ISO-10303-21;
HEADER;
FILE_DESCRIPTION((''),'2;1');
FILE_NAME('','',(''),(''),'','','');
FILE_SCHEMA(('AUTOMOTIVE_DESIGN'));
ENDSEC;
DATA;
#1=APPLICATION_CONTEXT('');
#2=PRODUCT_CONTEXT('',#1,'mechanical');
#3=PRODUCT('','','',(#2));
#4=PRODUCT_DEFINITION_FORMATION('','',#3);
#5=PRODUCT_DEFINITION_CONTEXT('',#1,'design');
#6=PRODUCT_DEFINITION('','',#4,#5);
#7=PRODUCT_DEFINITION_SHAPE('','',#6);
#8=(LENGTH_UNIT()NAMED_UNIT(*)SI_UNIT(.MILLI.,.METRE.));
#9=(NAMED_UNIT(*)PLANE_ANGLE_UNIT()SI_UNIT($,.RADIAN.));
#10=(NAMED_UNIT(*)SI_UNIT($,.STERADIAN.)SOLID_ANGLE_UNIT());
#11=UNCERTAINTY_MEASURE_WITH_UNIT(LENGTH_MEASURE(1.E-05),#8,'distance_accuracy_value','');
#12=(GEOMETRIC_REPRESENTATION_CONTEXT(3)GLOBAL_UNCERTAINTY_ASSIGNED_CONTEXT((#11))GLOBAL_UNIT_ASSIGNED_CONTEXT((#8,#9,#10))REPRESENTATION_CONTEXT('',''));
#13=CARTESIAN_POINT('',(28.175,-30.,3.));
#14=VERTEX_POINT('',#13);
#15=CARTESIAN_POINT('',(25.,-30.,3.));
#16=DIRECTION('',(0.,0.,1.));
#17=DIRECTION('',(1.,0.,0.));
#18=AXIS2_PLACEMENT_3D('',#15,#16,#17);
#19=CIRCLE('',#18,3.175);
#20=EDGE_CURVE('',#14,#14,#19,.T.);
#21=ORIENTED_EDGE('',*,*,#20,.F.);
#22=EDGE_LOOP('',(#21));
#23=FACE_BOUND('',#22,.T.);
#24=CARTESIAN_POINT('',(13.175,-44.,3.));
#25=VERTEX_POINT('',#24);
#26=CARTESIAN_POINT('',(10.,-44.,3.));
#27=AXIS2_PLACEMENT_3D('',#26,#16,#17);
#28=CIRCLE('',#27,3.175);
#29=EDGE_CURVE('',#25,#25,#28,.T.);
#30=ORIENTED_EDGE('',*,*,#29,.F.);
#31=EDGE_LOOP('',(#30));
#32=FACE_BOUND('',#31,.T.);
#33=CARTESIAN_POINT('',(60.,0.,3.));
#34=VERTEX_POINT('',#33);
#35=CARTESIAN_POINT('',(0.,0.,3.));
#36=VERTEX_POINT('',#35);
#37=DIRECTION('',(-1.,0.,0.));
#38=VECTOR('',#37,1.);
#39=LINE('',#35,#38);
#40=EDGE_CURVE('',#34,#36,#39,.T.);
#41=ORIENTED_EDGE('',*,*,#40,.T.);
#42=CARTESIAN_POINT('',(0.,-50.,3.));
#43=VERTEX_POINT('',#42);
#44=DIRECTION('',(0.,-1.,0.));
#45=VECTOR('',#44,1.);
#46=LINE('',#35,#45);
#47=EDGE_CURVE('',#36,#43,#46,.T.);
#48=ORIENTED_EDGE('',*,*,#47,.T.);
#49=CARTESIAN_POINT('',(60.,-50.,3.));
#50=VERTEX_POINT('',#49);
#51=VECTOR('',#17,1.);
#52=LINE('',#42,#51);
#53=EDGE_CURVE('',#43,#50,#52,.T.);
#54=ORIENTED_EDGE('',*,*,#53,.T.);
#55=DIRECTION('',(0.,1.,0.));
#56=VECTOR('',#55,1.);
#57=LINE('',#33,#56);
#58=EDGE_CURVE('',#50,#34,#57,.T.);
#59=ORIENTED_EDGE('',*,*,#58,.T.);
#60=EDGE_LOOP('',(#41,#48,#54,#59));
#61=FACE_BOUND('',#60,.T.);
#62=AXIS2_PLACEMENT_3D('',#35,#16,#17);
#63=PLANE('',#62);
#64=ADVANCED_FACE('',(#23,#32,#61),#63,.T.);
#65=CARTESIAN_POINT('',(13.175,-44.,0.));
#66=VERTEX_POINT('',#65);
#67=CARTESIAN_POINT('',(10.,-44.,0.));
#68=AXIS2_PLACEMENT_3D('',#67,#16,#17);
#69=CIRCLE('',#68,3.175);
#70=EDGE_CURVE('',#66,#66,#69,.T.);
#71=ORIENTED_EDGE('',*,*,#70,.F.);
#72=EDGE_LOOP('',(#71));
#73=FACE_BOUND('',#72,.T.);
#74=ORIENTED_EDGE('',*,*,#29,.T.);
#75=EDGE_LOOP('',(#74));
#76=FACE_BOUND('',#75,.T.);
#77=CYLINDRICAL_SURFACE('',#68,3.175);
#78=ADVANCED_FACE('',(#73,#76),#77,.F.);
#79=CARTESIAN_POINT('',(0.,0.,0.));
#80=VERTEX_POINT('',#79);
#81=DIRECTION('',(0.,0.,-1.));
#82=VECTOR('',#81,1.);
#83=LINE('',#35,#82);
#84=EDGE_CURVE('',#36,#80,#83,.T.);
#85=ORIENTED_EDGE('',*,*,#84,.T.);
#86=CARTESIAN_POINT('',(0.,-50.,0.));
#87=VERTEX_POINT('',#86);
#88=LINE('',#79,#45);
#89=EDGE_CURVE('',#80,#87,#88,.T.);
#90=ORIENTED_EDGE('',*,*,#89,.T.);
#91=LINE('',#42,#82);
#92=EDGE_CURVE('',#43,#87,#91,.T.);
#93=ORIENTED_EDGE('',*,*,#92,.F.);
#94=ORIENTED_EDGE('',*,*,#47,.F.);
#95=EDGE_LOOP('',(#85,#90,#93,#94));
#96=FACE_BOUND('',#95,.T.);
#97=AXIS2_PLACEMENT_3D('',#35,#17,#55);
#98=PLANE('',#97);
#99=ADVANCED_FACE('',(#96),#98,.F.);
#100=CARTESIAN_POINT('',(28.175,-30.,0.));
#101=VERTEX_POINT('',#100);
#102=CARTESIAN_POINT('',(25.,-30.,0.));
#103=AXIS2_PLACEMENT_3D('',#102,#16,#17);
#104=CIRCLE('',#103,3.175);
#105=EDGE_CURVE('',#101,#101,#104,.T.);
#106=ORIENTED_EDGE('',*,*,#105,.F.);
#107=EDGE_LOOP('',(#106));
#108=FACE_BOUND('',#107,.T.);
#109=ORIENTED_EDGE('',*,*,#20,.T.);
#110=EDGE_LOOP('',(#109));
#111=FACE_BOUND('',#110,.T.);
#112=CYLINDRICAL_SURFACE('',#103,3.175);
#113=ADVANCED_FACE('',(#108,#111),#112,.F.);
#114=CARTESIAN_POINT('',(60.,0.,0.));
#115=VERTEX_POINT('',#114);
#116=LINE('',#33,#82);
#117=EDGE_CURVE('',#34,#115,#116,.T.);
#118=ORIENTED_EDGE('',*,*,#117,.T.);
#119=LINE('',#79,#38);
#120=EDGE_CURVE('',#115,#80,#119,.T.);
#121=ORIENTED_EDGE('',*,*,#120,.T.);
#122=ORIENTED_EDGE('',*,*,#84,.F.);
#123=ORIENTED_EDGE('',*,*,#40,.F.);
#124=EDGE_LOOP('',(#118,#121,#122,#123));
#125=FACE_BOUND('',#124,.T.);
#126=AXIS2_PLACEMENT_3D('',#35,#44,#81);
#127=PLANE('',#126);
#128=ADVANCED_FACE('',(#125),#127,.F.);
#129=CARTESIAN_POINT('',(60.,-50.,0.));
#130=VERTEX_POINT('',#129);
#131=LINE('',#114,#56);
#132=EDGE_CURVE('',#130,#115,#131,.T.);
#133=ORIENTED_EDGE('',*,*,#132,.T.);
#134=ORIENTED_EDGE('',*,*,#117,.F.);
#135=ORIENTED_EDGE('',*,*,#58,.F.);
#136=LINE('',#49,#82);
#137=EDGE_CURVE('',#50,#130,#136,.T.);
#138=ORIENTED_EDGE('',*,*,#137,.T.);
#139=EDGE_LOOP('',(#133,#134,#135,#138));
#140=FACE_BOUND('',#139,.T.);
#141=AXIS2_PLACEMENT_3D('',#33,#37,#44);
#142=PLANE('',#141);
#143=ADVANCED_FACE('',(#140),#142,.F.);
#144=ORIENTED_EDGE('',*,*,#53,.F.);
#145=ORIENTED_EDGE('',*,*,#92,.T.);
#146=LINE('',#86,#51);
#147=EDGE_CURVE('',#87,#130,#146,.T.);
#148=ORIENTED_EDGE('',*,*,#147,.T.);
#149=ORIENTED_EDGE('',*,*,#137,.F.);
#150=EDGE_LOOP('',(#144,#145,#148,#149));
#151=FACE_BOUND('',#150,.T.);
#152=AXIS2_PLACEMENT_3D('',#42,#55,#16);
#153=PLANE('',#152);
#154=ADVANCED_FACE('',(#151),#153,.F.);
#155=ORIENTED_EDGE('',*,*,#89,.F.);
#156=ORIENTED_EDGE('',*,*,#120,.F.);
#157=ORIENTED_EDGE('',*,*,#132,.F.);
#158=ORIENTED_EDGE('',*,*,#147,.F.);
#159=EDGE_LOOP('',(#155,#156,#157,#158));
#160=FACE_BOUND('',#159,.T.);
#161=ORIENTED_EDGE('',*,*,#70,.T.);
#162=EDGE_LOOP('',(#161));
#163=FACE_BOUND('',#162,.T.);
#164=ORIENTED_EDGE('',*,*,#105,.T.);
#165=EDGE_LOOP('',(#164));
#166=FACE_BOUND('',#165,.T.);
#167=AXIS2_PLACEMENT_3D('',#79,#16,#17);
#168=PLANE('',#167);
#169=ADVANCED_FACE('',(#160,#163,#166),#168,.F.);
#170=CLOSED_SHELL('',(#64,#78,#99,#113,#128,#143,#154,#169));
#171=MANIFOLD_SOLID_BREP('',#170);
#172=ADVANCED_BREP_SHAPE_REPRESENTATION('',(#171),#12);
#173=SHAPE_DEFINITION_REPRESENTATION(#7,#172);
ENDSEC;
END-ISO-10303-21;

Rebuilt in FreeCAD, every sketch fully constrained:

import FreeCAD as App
import Part
import Sketcher

doc = App.newDocument("Part")
body = doc.addObject("PartDesign::Body", "Body")

sketch1 = body.newObject("Sketcher::SketchObject", "Sketch")
sketch1.AttachmentSupport = (doc.getObject("XY_Plane"), [""])
sketch1.MapMode = "FlatFace"
sketch1.addGeometry([
    Part.LineSegment(App.Vector(0, 0, 0), App.Vector(0, -50, 0)),
    Part.LineSegment(App.Vector(0, -50, 0), App.Vector(60, -50, 0)),
    Part.LineSegment(App.Vector(60, -50, 0), App.Vector(60, 0, 0)),
    Part.LineSegment(App.Vector(60, 0, 0), App.Vector(0, 0, 0)),
], False)
sketch1.addConstraint([
    Sketcher.Constraint("Coincident", 0, 2, 1, 1),
    Sketcher.Constraint("Coincident", 1, 2, 2, 1),
    Sketcher.Constraint("Coincident", 2, 2, 3, 1),
    Sketcher.Constraint("Coincident", 3, 2, 0, 1),
    Sketcher.Constraint("Vertical", 0),
    Sketcher.Constraint("Horizontal", 1),
    Sketcher.Constraint("Vertical", 2),
    Sketcher.Constraint("Horizontal", 3),
    Sketcher.Constraint("Coincident", 3, 2, -1, 1),
    Sketcher.Constraint("DistanceX", 1, 1, 1, 2, 60.0),
    Sketcher.Constraint("DistanceY", 0, 2, 0, 1, 50.0),
])
pad1 = body.newObject("PartDesign::Pad", "Pad")
pad1.Profile = sketch1
pad1.Length = 3

sketch2 = body.newObject("Sketcher::SketchObject", "Sketch001")
sketch2.AttachmentSupport = (doc.getObject("XY_Plane"), [""])
sketch2.MapMode = "FlatFace"
sketch2.AttachmentOffset = App.Placement(App.Vector(0, 0, 3), App.Rotation())
sketch2.addGeometry([
    Part.Circle(App.Vector(25, -30, 0), App.Vector(0, 0, 1), 3.2),
    Part.Circle(App.Vector(10, -44, 0), App.Vector(0, 0, 1), 3.2),
], False)
sketch2.addConstraint([
    Sketcher.Constraint("Equal", 0, 1),
    Sketcher.Constraint("Diameter", 0, 6.35),
    Sketcher.Constraint("DistanceX", -1, 1, 0, 3, 25.0),
    Sketcher.Constraint("DistanceY", 0, 3, -1, 1, 30.0),
    Sketcher.Constraint("DistanceX", -1, 1, 1, 3, 10.0),
    Sketcher.Constraint("DistanceY", 1, 3, -1, 1, 44.0),
])
pocket1 = body.newObject("PartDesign::Pocket", "Pocket")
pocket1.Profile = sketch2
pocket1.Type = "ThroughAll"

doc.recompute()
